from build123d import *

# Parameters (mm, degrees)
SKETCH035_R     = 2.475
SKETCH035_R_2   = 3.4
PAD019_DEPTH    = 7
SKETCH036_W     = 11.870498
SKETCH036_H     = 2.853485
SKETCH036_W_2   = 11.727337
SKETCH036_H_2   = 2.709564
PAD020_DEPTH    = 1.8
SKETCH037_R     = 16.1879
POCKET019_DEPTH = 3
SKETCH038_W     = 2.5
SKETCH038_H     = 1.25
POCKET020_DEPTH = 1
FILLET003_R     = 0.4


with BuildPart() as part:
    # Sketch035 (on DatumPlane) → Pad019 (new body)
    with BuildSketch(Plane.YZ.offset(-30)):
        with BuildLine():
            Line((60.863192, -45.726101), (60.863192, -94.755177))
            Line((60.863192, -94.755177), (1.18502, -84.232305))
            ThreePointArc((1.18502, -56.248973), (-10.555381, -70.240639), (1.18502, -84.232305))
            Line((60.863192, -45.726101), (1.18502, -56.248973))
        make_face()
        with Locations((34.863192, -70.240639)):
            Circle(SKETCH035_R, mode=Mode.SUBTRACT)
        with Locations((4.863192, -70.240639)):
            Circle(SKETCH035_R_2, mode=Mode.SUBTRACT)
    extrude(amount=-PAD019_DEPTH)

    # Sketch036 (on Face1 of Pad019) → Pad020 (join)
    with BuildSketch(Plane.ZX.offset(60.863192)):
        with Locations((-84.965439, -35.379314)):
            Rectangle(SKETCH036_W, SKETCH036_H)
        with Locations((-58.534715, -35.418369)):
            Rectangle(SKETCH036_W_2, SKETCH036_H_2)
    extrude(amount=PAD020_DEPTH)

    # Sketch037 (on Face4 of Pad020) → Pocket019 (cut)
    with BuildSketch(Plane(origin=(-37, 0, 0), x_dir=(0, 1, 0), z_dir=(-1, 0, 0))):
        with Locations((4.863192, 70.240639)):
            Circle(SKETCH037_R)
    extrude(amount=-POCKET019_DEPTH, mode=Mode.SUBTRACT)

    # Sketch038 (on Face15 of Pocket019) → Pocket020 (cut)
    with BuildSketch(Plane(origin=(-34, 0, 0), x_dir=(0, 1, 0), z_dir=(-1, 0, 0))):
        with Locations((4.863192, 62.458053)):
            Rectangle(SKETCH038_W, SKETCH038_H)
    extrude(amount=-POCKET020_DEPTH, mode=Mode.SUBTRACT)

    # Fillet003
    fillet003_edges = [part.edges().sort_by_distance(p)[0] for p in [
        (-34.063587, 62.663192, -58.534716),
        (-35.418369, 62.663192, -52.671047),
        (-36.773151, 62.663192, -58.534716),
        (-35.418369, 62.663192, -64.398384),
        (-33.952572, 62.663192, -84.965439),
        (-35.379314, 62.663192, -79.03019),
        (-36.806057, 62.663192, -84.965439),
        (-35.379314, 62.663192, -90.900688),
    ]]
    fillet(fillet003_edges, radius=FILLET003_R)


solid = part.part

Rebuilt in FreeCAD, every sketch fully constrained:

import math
import FreeCAD as App
import Part
import Sketcher
Q = App.Units.Quantity


def edges_at(feature, points):
    """Names of the edges that pass closest to the given points."""
    edges = feature.Shape.Edges
    near = lambda p: min(range(len(edges)), key=lambda i: edges[i].distToShape(Part.Vertex(*p))[0])
    return sorted({f"Edge{near(p) + 1}" for p in points})


def add_polygon(sketch, points):
    """Adds a closed chain of lines whose ends are joined by coincident constraints."""
    first, n = sketch.GeometryCount, len(points)
    for a, b in zip(points, points[1:] + points[:1]):
        sketch.addGeometry(Part.LineSegment(App.Vector(*a, 0), App.Vector(*b, 0)), False)
    for i in range(n):
        sketch.addConstraint(Sketcher.Constraint("Coincident", first + i, 2, first + (i + 1) % n, 1))

doc = App.newDocument("Part")
body = doc.addObject("PartDesign::Body", "Body")

sketch1 = body.newObject("Sketcher::SketchObject", "Sketch")
sketch1.AttachmentSupport = (doc.getObject("YZ_Plane"), [""])
sketch1.MapMode = "FlatFace"
sketch1.AttachmentOffset = App.Placement(App.Vector(0, 0, -30), App.Rotation())
sketch1.addGeometry(Part.LineSegment(App.Vector(60.863192, -94.755177, 0), App.Vector(60.863192, -45.726101, 0)), False)
sketch1.addGeometry(Part.LineSegment(App.Vector(60.863192, -45.726101, 0), App.Vector(1.18502, -56.248973, 0)), False)
sketch1.addGeometry(Part.ArcOfCircle(Part.Circle(App.Vector(3.652129, -70.240639, 0), App.Vector(0, 0, 1), 14.20751), math.radians(100.000004), math.radians(259.999996)), False)
sketch1.addGeometry(Part.LineSegment(App.Vector(1.18502, -84.232305, 0), App.Vector(60.863192, -94.755177, 0)), False)
sketch1.addGeometry(Part.Circle(App.Vector(34.863192, -70.240639, 0), App.Vector(0, 0, 1), 2.475), False)
sketch1.addGeometry(Part.Circle(App.Vector(4.863192, -70.240639, 0), App.Vector(0, 0, 1), 3.4), False)
sketch1.addConstraint(Sketcher.Constraint("Coincident", 0, 2, 1, 1))
sketch1.addConstraint(Sketcher.Constraint("Tangent", 1, 2, 2, 1))
sketch1.addConstraint(Sketcher.Constraint("Tangent", 2, 2, 3, 1))
sketch1.addConstraint(Sketcher.Constraint("Coincident", 3, 2, 0, 1))
sketch1.addConstraint(Sketcher.Constraint("Vertical", 0))
sketch1.addConstraint(Sketcher.Constraint("Horizontal", 2, 3, 4, 3))
sketch1.addConstraint(Sketcher.Constraint("Horizontal", 4, 3, 5, 3))
sketch1.addConstraint(Sketcher.Constraint("Vertical", 1, 2, 2, 2))
sketch1.addConstraint(Sketcher.Constraint("Diameter", 5, Q("6.8 mm")))
sketch1.addConstraint(Sketcher.Constraint("Diameter", 4, Q("4.95 mm")))
sketch1.addConstraint(Sketcher.Constraint("Angle", 1, Q("-170 deg")))
sketch1.addConstraint(Sketcher.Constraint("DistanceX", 5, 3, 4, 3, Q("30 mm")))
sketch1.addConstraint(Sketcher.Constraint("DistanceX", 4, 3, 0, 2, Q("26 mm")))
sketch1.addConstraint(Sketcher.Constraint("Radius", 2, Q("14.20751 mm")))
sketch1.addConstraint(Sketcher.Constraint("DistanceY", 0, 2, -1, 1, Q("45.726101 mm")))
sketch1.addConstraint(Sketcher.Constraint("DistanceY", 0, 1, 0, 2, Q("49.029076 mm")))
sketch1.addConstraint(Sketcher.Constraint("DistanceX", -1, 1, 2, 3, Q("3.652129 mm")))
pad1 = body.newObject("PartDesign::Pad", "Pad")
pad1.Profile = sketch1
pad1.Length = 7
pad1.Reversed = True

sketch2 = body.newObject("Sketcher::SketchObject", "Sketch001")
sketch2.AttachmentSupport = (doc.getObject("XZ_Plane"), [""])
sketch2.MapMode = "FlatFace"
sketch2.AttachmentOffset = App.Placement(App.Vector(0, 0, -60.863192), App.Rotation())
add_polygon(sketch2, [(-33.952571, -90.900688), (-36.806056, -90.900688), (-36.806056, -79.03019), (-33.952571, -79.03019)])
add_polygon(sketch2, [(-34.063587, -64.398383), (-36.773151, -64.398383), (-36.773151, -52.671047), (-34.063587, -52.671047)])
sketch2.addConstraint(Sketcher.Constraint("Horizontal", 0))
sketch2.addConstraint(Sketcher.Constraint("Vertical", 1))
sketch2.addConstraint(Sketcher.Constraint("Horizontal", 2))
sketch2.addConstraint(Sketcher.Constraint("Vertical", 3))
sketch2.addConstraint(Sketcher.Constraint("Horizontal", 4))
sketch2.addConstraint(Sketcher.Constraint("Vertical", 5))
sketch2.addConstraint(Sketcher.Constraint("Horizontal", 6))
sketch2.addConstraint(Sketcher.Constraint("Vertical", 7))
sketch2.addConstraint(Sketcher.Constraint("DistanceX", 0, 2, 0, 1, Q("2.853485 mm")))
sketch2.addConstraint(Sketcher.Constraint("DistanceX", 4, 2, 4, 1, Q("2.709564 mm")))
sketch2.addConstraint(Sketcher.Constraint("DistanceY", 1, 1, 1, 2, Q("11.870498 mm")))
sketch2.addConstraint(Sketcher.Constraint("DistanceY", 5, 1, 5, 2, Q("11.727337 mm")))
sketch2.addConstraint(Sketcher.Constraint("DistanceY", 0, 2, -1, 1, Q("90.900688 mm")))
sketch2.addConstraint(Sketcher.Constraint("DistanceX", 2, 2, -1, 1, Q("33.952571 mm")))
sketch2.addConstraint(Sketcher.Constraint("DistanceX", 4, 2, -1, 1, Q("36.773151 mm")))
sketch2.addConstraint(Sketcher.Constraint("DistanceY", 0, 2, 5, 2, Q("38.229641 mm")))
pad2 = body.newObject("PartDesign::Pad", "Pad001")
pad2.Profile = sketch2
pad2.Length = 1.8
pad2.Reversed = True

sketch3 = body.newObject("Sketcher::SketchObject", "Sketch002")
sketch3.AttachmentSupport = (doc.getObject("YZ_Plane"), [""])
sketch3.MapMode = "FlatFace"
sketch3.AttachmentOffset = App.Placement(App.Vector(0, 0, -37), App.Rotation())
sketch3.addGeometry(Part.Circle(App.Vector(4.863192, -70.240639, 0), App.Vector(0, 0, 1), 16.1879), False)
sketch3.addConstraint(Sketcher.Constraint("Diameter", 0, Q("32.3758 mm")))
sketch3.addConstraint(Sketcher.Constraint("DistanceX", -1, 1, 0, 3, Q("4.863192 mm")))
sketch3.addConstraint(Sketcher.Constraint("DistanceY", 0, 3, -1, 1, Q("70.240639 mm")))
pocket1 = body.newObject("PartDesign::Pocket", "Pocket")
pocket1.Profile = sketch3
pocket1.Length = 3
pocket1.Reversed = True

sketch4 = body.newObject("Sketcher::SketchObject", "Sketch003")
sketch4.AttachmentSupport = (doc.getObject("YZ_Plane"), [""])
sketch4.MapMode = "FlatFace"
sketch4.AttachmentOffset = App.Placement(App.Vector(0, 0, -34), App.Rotation())
add_polygon(sketch4, [(3.613192, -63.083053), (3.613192, -61.833053), (6.113192, -61.833053), (6.113192, -63.083053)])
sketch4.addConstraint(Sketcher.Constraint("Vertical", 0))
sketch4.addConstraint(Sketcher.Constraint("Horizontal", 1))
sketch4.addConstraint(Sketcher.Constraint("Vertical", 2))
sketch4.addConstraint(Sketcher.Constraint("Horizontal", 3))
sketch4.addConstraint(Sketcher.Constraint("DistanceX", 1, 1, 1, 2, Q("2.5 mm")))
sketch4.addConstraint(Sketcher.Constraint("DistanceY", 0, 1, 0, 2, Q("1.25 mm")))
sketch4.addConstraint(Sketcher.Constraint("DistanceX", -1, 1, 1, 2, Q("6.113192 mm")))
sketch4.addConstraint(Sketcher.Constraint("DistanceY", 0, 2, -1, 1, Q("61.833053 mm")))
pocket2 = body.newObject("PartDesign::Pocket", "Pocket001")
pocket2.Profile = sketch4
pocket2.Length = 1
pocket2.Reversed = True
doc.recompute()

fillet = body.newObject("PartDesign::Fillet", "Fillet")
fillet.Base = (pocket2, edges_at(pocket2, [
    (-34.064, 62.663, -58.535),
    (-35.418, 62.663, -52.671),
    (-36.773, 62.663, -58.535),
    (-35.418, 62.663, -64.398),
    (-33.953, 62.663, -84.965),
    (-35.379, 62.663, -79.03),
    (-36.806, 62.663, -84.965),
    (-35.379, 62.663, -90.901),
]))
fillet.Radius = 0.4

doc.recompute()
